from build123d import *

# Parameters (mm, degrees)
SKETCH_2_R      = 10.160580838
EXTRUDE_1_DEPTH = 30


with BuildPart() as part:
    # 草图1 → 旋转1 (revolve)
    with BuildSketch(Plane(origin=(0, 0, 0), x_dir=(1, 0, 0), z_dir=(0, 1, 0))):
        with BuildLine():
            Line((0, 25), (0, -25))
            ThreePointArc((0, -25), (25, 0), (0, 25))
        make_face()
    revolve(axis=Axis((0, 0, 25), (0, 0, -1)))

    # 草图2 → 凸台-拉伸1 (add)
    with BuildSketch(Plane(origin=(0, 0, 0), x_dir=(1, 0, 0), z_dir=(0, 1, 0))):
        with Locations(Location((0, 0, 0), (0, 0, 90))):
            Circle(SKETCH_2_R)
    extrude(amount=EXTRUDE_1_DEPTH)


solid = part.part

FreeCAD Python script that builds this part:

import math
import FreeCAD as App
import Part
import Sketcher

V = App.Vector

doc = App.newDocument("Part")
body = doc.addObject("PartDesign::Body", "Body")

sketch1 = body.newObject("Sketcher::SketchObject", "Sketch")
sketch1.AttachmentSupport = (doc.getObject("XZ_Plane"), [""])
sketch1.MapMode = "FlatFace"
sketch1.addGeometry([
    Part.LineSegment(V(0, -25, 0), V(0, 25, 0)),
    Part.ArcOfCircle(Part.Circle(V(0, 0, 0), V(0, 0, 1), 25), math.radians(-90), math.radians(90)),
], False)
sketch1.addConstraint([
    Sketcher.Constraint("Coincident", 0, 1, 1, 1),
    Sketcher.Constraint("Coincident", 1, 2, 0, 2),
    Sketcher.Constraint("Vertical", 0),
    Sketcher.Constraint("Coincident", 1, 3, -1, 1),
    Sketcher.Constraint("PointOnObject", 0, 1, -2),
    Sketcher.Constraint("Radius", 1, 25.0),
])
revolution = body.newObject("PartDesign::Revolution", "Revolution")
revolution.Profile = sketch1
revolution.ReferenceAxis = (sketch1, ["V_Axis"])
revolution.Angle = 360

sketch2 = body.newObject("Sketcher::SketchObject", "Sketch001")
sketch2.AttachmentSupport = (doc.getObject("XZ_Plane"), [""])
sketch2.MapMode = "FlatFace"
sketch2.addGeometry(Part.Circle(V(0, 0, 0), V(0, 0, 1), 10.160581), False)
sketch2.addConstraint([
    Sketcher.Constraint("Coincident", 0, 3, -1, 1),
    Sketcher.Constraint("Diameter", 0, 20.321162),
])
pad1 = body.newObject("PartDesign::Pad", "Pad")
pad1.Profile = sketch2
pad1.Length = 30
pad1.Reversed = True

doc.recompute()
